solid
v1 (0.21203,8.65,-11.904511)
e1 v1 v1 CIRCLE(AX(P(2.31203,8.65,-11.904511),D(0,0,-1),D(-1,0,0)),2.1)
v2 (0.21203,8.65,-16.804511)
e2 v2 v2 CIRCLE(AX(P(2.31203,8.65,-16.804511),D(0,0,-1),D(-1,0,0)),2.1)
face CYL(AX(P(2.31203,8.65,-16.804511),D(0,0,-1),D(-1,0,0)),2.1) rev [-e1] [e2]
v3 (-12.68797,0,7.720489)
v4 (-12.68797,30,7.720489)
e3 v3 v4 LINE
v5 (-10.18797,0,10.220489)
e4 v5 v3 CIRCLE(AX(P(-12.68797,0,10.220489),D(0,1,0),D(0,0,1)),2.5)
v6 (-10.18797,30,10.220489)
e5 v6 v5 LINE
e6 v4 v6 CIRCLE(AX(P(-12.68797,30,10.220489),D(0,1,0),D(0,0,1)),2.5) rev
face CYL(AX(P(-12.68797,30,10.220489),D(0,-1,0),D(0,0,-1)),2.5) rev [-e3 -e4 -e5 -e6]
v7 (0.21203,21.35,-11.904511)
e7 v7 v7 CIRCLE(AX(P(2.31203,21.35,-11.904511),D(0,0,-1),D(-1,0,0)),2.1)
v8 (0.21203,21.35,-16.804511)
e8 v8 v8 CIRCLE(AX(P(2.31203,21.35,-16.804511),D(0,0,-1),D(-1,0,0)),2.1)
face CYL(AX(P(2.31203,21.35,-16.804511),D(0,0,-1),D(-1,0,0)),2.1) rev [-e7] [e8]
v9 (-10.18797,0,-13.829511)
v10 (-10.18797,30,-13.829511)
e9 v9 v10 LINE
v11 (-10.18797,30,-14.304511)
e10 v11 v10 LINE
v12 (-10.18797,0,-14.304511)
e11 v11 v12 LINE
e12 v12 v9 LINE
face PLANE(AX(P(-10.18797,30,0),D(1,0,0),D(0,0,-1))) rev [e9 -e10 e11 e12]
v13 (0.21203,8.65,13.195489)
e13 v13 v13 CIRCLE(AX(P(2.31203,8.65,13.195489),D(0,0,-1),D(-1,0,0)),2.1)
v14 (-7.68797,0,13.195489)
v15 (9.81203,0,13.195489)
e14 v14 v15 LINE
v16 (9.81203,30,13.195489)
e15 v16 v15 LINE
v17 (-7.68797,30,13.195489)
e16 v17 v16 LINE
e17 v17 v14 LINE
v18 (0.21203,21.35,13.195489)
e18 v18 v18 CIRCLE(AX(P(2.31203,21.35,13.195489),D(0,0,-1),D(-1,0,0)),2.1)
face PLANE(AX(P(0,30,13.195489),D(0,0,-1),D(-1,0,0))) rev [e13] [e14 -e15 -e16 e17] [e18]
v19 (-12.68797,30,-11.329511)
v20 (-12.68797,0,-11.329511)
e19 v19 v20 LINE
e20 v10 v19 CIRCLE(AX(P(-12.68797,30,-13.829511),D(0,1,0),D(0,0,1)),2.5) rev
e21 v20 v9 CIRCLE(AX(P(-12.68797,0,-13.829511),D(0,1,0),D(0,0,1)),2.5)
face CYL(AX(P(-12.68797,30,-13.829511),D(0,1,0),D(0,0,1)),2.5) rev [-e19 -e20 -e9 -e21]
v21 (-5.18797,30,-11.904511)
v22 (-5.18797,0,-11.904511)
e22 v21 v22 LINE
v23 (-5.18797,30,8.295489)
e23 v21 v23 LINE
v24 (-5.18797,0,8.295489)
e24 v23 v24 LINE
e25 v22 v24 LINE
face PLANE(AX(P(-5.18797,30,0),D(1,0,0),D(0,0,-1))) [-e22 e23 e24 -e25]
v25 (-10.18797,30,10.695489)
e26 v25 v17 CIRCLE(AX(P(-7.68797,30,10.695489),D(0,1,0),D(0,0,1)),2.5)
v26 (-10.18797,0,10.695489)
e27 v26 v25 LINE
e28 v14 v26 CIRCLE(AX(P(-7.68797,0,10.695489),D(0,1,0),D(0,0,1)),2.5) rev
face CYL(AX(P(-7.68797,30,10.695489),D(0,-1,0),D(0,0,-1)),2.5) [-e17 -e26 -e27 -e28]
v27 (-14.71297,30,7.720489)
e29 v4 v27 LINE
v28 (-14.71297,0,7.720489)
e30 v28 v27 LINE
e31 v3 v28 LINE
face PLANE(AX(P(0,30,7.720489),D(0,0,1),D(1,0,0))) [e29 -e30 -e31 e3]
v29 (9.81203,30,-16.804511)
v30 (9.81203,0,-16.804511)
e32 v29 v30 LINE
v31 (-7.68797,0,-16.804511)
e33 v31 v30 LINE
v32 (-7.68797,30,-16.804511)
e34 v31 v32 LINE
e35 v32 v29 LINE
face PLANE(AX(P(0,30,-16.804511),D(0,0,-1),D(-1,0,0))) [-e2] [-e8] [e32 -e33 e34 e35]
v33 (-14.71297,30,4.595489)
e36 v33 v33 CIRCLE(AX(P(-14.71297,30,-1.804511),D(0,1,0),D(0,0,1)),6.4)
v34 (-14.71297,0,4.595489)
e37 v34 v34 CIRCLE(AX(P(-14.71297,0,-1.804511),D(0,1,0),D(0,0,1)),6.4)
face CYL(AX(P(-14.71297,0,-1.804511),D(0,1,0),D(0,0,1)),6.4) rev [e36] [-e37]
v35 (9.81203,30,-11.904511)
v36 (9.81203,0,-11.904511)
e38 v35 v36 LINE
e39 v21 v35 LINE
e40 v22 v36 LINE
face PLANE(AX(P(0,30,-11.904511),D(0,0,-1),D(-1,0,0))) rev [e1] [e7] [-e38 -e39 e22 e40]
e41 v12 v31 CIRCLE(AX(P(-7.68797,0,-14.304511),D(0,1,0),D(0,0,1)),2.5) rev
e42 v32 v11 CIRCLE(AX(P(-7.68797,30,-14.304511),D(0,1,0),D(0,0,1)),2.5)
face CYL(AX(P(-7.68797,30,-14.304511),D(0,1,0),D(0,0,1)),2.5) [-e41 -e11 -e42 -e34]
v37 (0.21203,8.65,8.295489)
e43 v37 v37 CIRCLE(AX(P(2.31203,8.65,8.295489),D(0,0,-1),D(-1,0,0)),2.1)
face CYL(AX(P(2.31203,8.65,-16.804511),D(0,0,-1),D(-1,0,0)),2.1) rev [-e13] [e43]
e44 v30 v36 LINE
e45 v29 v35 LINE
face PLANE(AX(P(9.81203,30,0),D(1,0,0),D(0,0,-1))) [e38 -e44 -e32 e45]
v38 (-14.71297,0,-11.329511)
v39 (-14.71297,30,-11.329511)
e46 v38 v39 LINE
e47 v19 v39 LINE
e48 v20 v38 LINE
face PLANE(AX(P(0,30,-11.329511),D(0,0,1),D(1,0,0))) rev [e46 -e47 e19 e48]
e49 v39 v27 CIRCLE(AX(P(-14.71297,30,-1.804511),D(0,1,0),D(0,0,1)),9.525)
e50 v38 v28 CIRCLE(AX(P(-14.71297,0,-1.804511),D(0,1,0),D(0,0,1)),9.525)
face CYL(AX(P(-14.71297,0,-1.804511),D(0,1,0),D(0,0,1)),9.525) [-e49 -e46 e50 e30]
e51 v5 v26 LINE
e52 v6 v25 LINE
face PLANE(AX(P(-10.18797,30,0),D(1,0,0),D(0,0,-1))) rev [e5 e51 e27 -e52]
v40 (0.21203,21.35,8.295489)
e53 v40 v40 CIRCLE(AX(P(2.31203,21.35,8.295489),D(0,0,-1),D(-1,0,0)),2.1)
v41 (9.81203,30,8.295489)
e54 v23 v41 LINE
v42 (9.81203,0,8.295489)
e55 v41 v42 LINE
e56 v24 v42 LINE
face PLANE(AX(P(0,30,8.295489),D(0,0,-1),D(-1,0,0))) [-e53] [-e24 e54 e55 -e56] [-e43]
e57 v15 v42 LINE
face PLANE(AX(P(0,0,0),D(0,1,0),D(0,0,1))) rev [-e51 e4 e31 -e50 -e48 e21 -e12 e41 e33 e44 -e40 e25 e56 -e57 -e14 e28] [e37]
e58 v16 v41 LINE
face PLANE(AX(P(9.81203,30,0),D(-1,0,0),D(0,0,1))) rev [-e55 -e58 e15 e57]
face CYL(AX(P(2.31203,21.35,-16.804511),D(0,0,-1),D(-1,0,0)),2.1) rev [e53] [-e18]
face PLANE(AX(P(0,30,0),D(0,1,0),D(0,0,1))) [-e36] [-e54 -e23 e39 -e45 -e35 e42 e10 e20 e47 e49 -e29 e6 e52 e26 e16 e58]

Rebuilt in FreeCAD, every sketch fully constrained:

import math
import FreeCAD as App
import Part
import Sketcher
from FreeCAD import Vector


def edges_at(feature, points):
    """Names of the edges that pass closest to the given points."""
    edges = feature.Shape.Edges
    near = lambda p: min(range(len(edges)), key=lambda i: edges[i].distToShape(Part.Vertex(*p))[0])
    return sorted({f"Edge{near(p) + 1}" for p in points})

doc = App.newDocument("Part")
params = doc.addObject("Spreadsheet::Sheet", "Params")
for row, (alias, value) in enumerate([
    ("sketch1_width", "15 mm"),
    ("sketch1_width2", "20 mm"),
    ("sketch1_height", "4.9 mm"),
    ("sketch1_height2", "20.2 mm"),
    ("sketch1_width3", "14.05 mm"),
    ("pad1_length", "30 mm"),
    ("sketch2_diameter", "12.8 mm"),
    ("pocket2_length", "30 mm"),
    ("fillet_radius", "2.5 mm"),
    ("sketch4_diameter", "4.2 mm"),
    ("hole_diameter", "4.2 mm"),
], start=1):
    params.set(f"A{row}", alias)
    params.set(f"B{row}", "=" + value)
    params.setAlias(f"B{row}", alias)

body = doc.addObject("PartDesign::Body", "Body")

sketch1 = body.newObject("Sketcher::SketchObject", "Sketch")
sketch1.AttachmentSupport = (doc.getObject("XZ_Plane"), [""])
sketch1.MapMode = "FlatFace"
sketch1.addGeometry(Part.LineSegment(Vector(-5.2, -11.9, 0), Vector(9.8, -11.9, 0)), False)
sketch1.addGeometry(Part.LineSegment(Vector(9.8, -11.9, 0), Vector(9.8, -16.8, 0)), False)
sketch1.addGeometry(Part.LineSegment(Vector(9.8, -16.8, 0), Vector(-10.2, -16.8, 0)), False)
sketch1.addGeometry(Part.LineSegment(Vector(-10.2, -16.8, 0), Vector(-10.2, -11.3, 0)), False)
sketch1.addGeometry(Part.LineSegment(Vector(-10.2, -11.3, 0), Vector(-24.2, -11.3, 0)), False)
sketch1.addGeometry(Part.LineSegment(Vector(-24.2, -11.3, 0), Vector(-24.2, 7.7, 0)), False)
sketch1.addGeometry(Part.LineSegment(Vector(-24.2, 7.7, 0), Vector(-10.2, 7.7, 0)), False)
sketch1.addGeometry(Part.LineSegment(Vector(-10.2, 7.7, 0), Vector(-10.2, 13.2, 0)), False)
sketch1.addGeometry(Part.LineSegment(Vector(-10.2, 13.2, 0), Vector(9.8, 13.2, 0)), False)
sketch1.addGeometry(Part.LineSegment(Vector(9.8, 13.2, 0), Vector(9.8, 8.3, 0)), False)
sketch1.addGeometry(Part.LineSegment(Vector(9.8, 8.3, 0), Vector(-5.2, 8.3, 0)), False)
sketch1.addGeometry(Part.LineSegment(Vector(-5.2, 8.3, 0), Vector(-5.2, -11.9, 0)), False)
sketch1.addConstraint(Sketcher.Constraint("Coincident", 0, 2, 1, 1))
sketch1.addConstraint(Sketcher.Constraint("Coincident", 1, 2, 2, 1))
sketch1.addConstraint(Sketcher.Constraint("Coincident", 2, 2, 3, 1))
sketch1.addConstraint(Sketcher.Constraint("Coincident", 3, 2, 4, 1))
sketch1.addConstraint(Sketcher.Constraint("Coincident", 4, 2, 5, 1))
sketch1.addConstraint(Sketcher.Constraint("Coincident", 5, 2, 6, 1))
sketch1.addConstraint(Sketcher.Constraint("Coincident", 6, 2, 7, 1))
sketch1.addConstraint(Sketcher.Constraint("Coincident", 7, 2, 8, 1))
sketch1.addConstraint(Sketcher.Constraint("Coincident", 8, 2, 9, 1))
sketch1.addConstraint(Sketcher.Constraint("Coincident", 9, 2, 10, 1))
sketch1.addConstraint(Sketcher.Constraint("Coincident", 10, 2, 11, 1))
sketch1.addConstraint(Sketcher.Constraint("Coincident", 11, 2, 0, 1))
sketch1.addConstraint(Sketcher.Constraint("Horizontal", 0))
sketch1.addConstraint(Sketcher.Constraint("Vertical", 1))
sketch1.addConstraint(Sketcher.Constraint("Horizontal", 2))
sketch1.addConstraint(Sketcher.Constraint("Vertical", 3))
sketch1.addConstraint(Sketcher.Constraint("Horizontal", 4))
sketch1.addConstraint(Sketcher.Constraint("Vertical", 5))
sketch1.addConstraint(Sketcher.Constraint("Horizontal", 6))
sketch1.addConstraint(Sketcher.Constraint("Vertical", 7))
sketch1.addConstraint(Sketcher.Constraint("Horizontal", 8))
sketch1.addConstraint(Sketcher.Constraint("Vertical", 9))
sketch1.addConstraint(Sketcher.Constraint("Horizontal", 10))
sketch1.addConstraint(Sketcher.Constraint("Vertical", 11))
sketch1.addConstraint(Sketcher.Constraint("Vertical", 3, 2, 6, 2))
sketch1.addConstraint(Sketcher.Constraint("Vertical", 1, 2, 8, 2))
sketch1.addConstraint(Sketcher.Constraint("Equal", 3, 7))
sketch1.addConstraint(Sketcher.Constraint("Equal", 1, 9))
sketch1.addConstraint(Sketcher.Constraint("DistanceX", 0, 1, 0, 2, 15.0))
sketch1.addConstraint(Sketcher.Constraint("DistanceX", 2, 2, 2, 1, 20.0))
sketch1.addConstraint(Sketcher.Constraint("DistanceY", 1, 2, 1, 1, 4.9))
sketch1.addConstraint(Sketcher.Constraint("DistanceY", 11, 2, 11, 1, 20.2))
sketch1.addConstraint(Sketcher.Constraint("DistanceX", 4, 2, 4, 1, 14.05))
sketch1.addConstraint(Sketcher.Constraint("DistanceY", 5, 1, 5, 2, 19.05))
sketch1.addConstraint(Sketcher.Constraint("DistanceX", -1, 1, 0, 2, 9.81203))
sketch1.addConstraint(Sketcher.Constraint("DistanceY", 0, 2, -1, 1, 11.904511))
sketch1.setExpression("Constraints[28]", "Params.sketch1_width")
sketch1.setExpression("Constraints[29]", "Params.sketch1_width2")
sketch1.setExpression("Constraints[30]", "Params.sketch1_height")
sketch1.setExpression("Constraints[31]", "Params.sketch1_height2")
sketch1.setExpression("Constraints[32]", "Params.sketch1_width3")
pad1 = body.newObject("PartDesign::Pad", "Pad")
pad1.Profile = sketch1
pad1.setExpression("Length", "Params.pad1_length")
pad1.Reversed = True

sketch2 = body.newObject("Sketcher::SketchObject", "Sketch001")
sketch2.AttachmentSupport = (doc.getObject("XZ_Plane"), [""])
sketch2.MapMode = "FlatFace"
sketch2.AttachmentOffset = App.Placement(Vector(0, 0, -30), App.Rotation())
sketch2.addGeometry(Part.Circle(Vector(-15, -2, 0), Vector(0, 0, 1), 6), False)
sketch2.addConstraint(Sketcher.Constraint("Diameter", 0, 12.8))
sketch2.addConstraint(Sketcher.Constraint("DistanceX", 0, 3, -1, 1, 14.71297))
sketch2.addConstraint(Sketcher.Constraint("DistanceY", 0, 3, -1, 1, 1.804511))
sketch2.setExpression("Constraints[0]", "Params.sketch2_diameter")
pocket1 = body.newObject("PartDesign::Pocket", "Pocket")
pocket1.Profile = sketch2
pocket1.Type = "ThroughAll"
pocket1.Reversed = True

sketch3 = body.newObject("Sketcher::SketchObject", "Sketch002")
sketch3.AttachmentSupport = (doc.getObject("XZ_Plane"), [""])
sketch3.MapMode = "FlatFace"
sketch3.AttachmentOffset = App.Placement(Vector(0, 0, -30), App.Rotation())
sketch3.addGeometry(Part.LineSegment(Vector(-15, -11, 0), Vector(-24, -11, 0)), False)
sketch3.addGeometry(Part.LineSegment(Vector(-24, -11, 0), Vector(-24, -2, 0)), False)
sketch3.addGeometry(Part.ArcOfCircle(Part.Circle(Vector(-15, -2, 0), Vector(0, 0, 1), 10), math.radians(180), math.radians(270)), False)
sketch3.addGeometry(Part.ArcOfCircle(Part.Circle(Vector(-15, -2, 0), Vector(0, 0, 1), 10), math.radians(90), math.radians(180)), False)
sketch3.addGeometry(Part.LineSegment(Vector(-24, -2, 0), Vector(-24, 8, 0)), False)
sketch3.addGeometry(Part.LineSegment(Vector(-24, 8, 0), Vector(-15, 8, 0)), False)
sketch3.addConstraint(Sketcher.Constraint("Coincident", 0, 2, 1, 1))
sketch3.addConstraint(Sketcher.Constraint("Tangent", 1, 2, 2, 1))
sketch3.addConstraint(Sketcher.Constraint("Tangent", 2, 2, 0, 1))
sketch3.addConstraint(Sketcher.Constraint("Tangent", 3, 2, 4, 1))
sketch3.addConstraint(Sketcher.Constraint("Coincident", 4, 2, 5, 1))
sketch3.addConstraint(Sketcher.Constraint("Tangent", 5, 2, 3, 1))
sketch3.addConstraint(Sketcher.Constraint("Horizontal", 0))
sketch3.addConstraint(Sketcher.Constraint("Vertical", 1))
sketch3.addConstraint(Sketcher.Constraint("Vertical", 4))
sketch3.addConstraint(Sketcher.Constraint("Horizontal", 5))
sketch3.addConstraint(Sketcher.Constraint("Coincident", 3, 3, 2, 3))
sketch3.addConstraint(Sketcher.Constraint("Equal", 2, 3))
sketch3.addConstraint(Sketcher.Constraint("Radius", 2, 9.525))
sketch3.addConstraint(Sketcher.Constraint("DistanceX", 2, 3, -1, 1, 14.71297))
sketch3.addConstraint(Sketcher.Constraint("DistanceY", 2, 3, -1, 1, 1.804511))
pocket2 = body.newObject("PartDesign::Pocket", "Pocket001")
pocket2.Profile = sketch3
pocket2.setExpression("Length", "Params.pocket2_length")
pocket2.Reversed = True
doc.recompute()

fillet = body.newObject("PartDesign::Fillet", "Fillet")
fillet.Base = (pocket2, edges_at(pocket2, [
    (-10.188, 15, 13.195),
    (-10.188, 15, 7.72),
    (-10.188, 15, -11.33),
    (-10.188, 15, -16.805),
]))
fillet.setExpression("Radius", "Params.fillet_radius")

sketch4 = body.newObject("Sketcher::SketchObject", "Sketch003")
sketch4.AttachmentSupport = (doc.getObject("XY_Plane"), [""])
sketch4.MapMode = "FlatFace"
sketch4.AttachmentOffset = App.Placement(Vector(0, 0, -16.804511), App.Rotation())
sketch4.addGeometry(Part.Circle(Vector(2.3, 21.4, 0), Vector(0, 0, 1), 2.1), False)
sketch4.addGeometry(Part.Circle(Vector(2.3, 8.7, 0), Vector(0, 0, 1), 2.1), False)
sketch4.addConstraint(Sketcher.Constraint("Equal", 0, 1))
sketch4.addConstraint(Sketcher.Constraint("Vertical", 0, 3, 1, 3))
sketch4.addConstraint(Sketcher.Constraint("Diameter", 0, 4.2))
sketch4.addConstraint(Sketcher.Constraint("DistanceY", 1, 3, 0, 3, 12.7))
sketch4.addConstraint(Sketcher.Constraint("DistanceY", -1, 1, 0, 3, 21.35))
sketch4.addConstraint(Sketcher.Constraint("DistanceX", -1, 1, 0, 3, 2.31203))
sketch4.setExpression("Constraints[2]", "Params.sketch4_diameter")
doc.recompute()
hole = body.newObject("PartDesign::Hole", "Hole")
hole.Profile = sketch4
hole.ThreadType = "None"
hole.setExpression("Diameter", "Params.hole_diameter")
hole.DepthType = "ThroughAll"
hole.Reversed = True

doc.recompute()
